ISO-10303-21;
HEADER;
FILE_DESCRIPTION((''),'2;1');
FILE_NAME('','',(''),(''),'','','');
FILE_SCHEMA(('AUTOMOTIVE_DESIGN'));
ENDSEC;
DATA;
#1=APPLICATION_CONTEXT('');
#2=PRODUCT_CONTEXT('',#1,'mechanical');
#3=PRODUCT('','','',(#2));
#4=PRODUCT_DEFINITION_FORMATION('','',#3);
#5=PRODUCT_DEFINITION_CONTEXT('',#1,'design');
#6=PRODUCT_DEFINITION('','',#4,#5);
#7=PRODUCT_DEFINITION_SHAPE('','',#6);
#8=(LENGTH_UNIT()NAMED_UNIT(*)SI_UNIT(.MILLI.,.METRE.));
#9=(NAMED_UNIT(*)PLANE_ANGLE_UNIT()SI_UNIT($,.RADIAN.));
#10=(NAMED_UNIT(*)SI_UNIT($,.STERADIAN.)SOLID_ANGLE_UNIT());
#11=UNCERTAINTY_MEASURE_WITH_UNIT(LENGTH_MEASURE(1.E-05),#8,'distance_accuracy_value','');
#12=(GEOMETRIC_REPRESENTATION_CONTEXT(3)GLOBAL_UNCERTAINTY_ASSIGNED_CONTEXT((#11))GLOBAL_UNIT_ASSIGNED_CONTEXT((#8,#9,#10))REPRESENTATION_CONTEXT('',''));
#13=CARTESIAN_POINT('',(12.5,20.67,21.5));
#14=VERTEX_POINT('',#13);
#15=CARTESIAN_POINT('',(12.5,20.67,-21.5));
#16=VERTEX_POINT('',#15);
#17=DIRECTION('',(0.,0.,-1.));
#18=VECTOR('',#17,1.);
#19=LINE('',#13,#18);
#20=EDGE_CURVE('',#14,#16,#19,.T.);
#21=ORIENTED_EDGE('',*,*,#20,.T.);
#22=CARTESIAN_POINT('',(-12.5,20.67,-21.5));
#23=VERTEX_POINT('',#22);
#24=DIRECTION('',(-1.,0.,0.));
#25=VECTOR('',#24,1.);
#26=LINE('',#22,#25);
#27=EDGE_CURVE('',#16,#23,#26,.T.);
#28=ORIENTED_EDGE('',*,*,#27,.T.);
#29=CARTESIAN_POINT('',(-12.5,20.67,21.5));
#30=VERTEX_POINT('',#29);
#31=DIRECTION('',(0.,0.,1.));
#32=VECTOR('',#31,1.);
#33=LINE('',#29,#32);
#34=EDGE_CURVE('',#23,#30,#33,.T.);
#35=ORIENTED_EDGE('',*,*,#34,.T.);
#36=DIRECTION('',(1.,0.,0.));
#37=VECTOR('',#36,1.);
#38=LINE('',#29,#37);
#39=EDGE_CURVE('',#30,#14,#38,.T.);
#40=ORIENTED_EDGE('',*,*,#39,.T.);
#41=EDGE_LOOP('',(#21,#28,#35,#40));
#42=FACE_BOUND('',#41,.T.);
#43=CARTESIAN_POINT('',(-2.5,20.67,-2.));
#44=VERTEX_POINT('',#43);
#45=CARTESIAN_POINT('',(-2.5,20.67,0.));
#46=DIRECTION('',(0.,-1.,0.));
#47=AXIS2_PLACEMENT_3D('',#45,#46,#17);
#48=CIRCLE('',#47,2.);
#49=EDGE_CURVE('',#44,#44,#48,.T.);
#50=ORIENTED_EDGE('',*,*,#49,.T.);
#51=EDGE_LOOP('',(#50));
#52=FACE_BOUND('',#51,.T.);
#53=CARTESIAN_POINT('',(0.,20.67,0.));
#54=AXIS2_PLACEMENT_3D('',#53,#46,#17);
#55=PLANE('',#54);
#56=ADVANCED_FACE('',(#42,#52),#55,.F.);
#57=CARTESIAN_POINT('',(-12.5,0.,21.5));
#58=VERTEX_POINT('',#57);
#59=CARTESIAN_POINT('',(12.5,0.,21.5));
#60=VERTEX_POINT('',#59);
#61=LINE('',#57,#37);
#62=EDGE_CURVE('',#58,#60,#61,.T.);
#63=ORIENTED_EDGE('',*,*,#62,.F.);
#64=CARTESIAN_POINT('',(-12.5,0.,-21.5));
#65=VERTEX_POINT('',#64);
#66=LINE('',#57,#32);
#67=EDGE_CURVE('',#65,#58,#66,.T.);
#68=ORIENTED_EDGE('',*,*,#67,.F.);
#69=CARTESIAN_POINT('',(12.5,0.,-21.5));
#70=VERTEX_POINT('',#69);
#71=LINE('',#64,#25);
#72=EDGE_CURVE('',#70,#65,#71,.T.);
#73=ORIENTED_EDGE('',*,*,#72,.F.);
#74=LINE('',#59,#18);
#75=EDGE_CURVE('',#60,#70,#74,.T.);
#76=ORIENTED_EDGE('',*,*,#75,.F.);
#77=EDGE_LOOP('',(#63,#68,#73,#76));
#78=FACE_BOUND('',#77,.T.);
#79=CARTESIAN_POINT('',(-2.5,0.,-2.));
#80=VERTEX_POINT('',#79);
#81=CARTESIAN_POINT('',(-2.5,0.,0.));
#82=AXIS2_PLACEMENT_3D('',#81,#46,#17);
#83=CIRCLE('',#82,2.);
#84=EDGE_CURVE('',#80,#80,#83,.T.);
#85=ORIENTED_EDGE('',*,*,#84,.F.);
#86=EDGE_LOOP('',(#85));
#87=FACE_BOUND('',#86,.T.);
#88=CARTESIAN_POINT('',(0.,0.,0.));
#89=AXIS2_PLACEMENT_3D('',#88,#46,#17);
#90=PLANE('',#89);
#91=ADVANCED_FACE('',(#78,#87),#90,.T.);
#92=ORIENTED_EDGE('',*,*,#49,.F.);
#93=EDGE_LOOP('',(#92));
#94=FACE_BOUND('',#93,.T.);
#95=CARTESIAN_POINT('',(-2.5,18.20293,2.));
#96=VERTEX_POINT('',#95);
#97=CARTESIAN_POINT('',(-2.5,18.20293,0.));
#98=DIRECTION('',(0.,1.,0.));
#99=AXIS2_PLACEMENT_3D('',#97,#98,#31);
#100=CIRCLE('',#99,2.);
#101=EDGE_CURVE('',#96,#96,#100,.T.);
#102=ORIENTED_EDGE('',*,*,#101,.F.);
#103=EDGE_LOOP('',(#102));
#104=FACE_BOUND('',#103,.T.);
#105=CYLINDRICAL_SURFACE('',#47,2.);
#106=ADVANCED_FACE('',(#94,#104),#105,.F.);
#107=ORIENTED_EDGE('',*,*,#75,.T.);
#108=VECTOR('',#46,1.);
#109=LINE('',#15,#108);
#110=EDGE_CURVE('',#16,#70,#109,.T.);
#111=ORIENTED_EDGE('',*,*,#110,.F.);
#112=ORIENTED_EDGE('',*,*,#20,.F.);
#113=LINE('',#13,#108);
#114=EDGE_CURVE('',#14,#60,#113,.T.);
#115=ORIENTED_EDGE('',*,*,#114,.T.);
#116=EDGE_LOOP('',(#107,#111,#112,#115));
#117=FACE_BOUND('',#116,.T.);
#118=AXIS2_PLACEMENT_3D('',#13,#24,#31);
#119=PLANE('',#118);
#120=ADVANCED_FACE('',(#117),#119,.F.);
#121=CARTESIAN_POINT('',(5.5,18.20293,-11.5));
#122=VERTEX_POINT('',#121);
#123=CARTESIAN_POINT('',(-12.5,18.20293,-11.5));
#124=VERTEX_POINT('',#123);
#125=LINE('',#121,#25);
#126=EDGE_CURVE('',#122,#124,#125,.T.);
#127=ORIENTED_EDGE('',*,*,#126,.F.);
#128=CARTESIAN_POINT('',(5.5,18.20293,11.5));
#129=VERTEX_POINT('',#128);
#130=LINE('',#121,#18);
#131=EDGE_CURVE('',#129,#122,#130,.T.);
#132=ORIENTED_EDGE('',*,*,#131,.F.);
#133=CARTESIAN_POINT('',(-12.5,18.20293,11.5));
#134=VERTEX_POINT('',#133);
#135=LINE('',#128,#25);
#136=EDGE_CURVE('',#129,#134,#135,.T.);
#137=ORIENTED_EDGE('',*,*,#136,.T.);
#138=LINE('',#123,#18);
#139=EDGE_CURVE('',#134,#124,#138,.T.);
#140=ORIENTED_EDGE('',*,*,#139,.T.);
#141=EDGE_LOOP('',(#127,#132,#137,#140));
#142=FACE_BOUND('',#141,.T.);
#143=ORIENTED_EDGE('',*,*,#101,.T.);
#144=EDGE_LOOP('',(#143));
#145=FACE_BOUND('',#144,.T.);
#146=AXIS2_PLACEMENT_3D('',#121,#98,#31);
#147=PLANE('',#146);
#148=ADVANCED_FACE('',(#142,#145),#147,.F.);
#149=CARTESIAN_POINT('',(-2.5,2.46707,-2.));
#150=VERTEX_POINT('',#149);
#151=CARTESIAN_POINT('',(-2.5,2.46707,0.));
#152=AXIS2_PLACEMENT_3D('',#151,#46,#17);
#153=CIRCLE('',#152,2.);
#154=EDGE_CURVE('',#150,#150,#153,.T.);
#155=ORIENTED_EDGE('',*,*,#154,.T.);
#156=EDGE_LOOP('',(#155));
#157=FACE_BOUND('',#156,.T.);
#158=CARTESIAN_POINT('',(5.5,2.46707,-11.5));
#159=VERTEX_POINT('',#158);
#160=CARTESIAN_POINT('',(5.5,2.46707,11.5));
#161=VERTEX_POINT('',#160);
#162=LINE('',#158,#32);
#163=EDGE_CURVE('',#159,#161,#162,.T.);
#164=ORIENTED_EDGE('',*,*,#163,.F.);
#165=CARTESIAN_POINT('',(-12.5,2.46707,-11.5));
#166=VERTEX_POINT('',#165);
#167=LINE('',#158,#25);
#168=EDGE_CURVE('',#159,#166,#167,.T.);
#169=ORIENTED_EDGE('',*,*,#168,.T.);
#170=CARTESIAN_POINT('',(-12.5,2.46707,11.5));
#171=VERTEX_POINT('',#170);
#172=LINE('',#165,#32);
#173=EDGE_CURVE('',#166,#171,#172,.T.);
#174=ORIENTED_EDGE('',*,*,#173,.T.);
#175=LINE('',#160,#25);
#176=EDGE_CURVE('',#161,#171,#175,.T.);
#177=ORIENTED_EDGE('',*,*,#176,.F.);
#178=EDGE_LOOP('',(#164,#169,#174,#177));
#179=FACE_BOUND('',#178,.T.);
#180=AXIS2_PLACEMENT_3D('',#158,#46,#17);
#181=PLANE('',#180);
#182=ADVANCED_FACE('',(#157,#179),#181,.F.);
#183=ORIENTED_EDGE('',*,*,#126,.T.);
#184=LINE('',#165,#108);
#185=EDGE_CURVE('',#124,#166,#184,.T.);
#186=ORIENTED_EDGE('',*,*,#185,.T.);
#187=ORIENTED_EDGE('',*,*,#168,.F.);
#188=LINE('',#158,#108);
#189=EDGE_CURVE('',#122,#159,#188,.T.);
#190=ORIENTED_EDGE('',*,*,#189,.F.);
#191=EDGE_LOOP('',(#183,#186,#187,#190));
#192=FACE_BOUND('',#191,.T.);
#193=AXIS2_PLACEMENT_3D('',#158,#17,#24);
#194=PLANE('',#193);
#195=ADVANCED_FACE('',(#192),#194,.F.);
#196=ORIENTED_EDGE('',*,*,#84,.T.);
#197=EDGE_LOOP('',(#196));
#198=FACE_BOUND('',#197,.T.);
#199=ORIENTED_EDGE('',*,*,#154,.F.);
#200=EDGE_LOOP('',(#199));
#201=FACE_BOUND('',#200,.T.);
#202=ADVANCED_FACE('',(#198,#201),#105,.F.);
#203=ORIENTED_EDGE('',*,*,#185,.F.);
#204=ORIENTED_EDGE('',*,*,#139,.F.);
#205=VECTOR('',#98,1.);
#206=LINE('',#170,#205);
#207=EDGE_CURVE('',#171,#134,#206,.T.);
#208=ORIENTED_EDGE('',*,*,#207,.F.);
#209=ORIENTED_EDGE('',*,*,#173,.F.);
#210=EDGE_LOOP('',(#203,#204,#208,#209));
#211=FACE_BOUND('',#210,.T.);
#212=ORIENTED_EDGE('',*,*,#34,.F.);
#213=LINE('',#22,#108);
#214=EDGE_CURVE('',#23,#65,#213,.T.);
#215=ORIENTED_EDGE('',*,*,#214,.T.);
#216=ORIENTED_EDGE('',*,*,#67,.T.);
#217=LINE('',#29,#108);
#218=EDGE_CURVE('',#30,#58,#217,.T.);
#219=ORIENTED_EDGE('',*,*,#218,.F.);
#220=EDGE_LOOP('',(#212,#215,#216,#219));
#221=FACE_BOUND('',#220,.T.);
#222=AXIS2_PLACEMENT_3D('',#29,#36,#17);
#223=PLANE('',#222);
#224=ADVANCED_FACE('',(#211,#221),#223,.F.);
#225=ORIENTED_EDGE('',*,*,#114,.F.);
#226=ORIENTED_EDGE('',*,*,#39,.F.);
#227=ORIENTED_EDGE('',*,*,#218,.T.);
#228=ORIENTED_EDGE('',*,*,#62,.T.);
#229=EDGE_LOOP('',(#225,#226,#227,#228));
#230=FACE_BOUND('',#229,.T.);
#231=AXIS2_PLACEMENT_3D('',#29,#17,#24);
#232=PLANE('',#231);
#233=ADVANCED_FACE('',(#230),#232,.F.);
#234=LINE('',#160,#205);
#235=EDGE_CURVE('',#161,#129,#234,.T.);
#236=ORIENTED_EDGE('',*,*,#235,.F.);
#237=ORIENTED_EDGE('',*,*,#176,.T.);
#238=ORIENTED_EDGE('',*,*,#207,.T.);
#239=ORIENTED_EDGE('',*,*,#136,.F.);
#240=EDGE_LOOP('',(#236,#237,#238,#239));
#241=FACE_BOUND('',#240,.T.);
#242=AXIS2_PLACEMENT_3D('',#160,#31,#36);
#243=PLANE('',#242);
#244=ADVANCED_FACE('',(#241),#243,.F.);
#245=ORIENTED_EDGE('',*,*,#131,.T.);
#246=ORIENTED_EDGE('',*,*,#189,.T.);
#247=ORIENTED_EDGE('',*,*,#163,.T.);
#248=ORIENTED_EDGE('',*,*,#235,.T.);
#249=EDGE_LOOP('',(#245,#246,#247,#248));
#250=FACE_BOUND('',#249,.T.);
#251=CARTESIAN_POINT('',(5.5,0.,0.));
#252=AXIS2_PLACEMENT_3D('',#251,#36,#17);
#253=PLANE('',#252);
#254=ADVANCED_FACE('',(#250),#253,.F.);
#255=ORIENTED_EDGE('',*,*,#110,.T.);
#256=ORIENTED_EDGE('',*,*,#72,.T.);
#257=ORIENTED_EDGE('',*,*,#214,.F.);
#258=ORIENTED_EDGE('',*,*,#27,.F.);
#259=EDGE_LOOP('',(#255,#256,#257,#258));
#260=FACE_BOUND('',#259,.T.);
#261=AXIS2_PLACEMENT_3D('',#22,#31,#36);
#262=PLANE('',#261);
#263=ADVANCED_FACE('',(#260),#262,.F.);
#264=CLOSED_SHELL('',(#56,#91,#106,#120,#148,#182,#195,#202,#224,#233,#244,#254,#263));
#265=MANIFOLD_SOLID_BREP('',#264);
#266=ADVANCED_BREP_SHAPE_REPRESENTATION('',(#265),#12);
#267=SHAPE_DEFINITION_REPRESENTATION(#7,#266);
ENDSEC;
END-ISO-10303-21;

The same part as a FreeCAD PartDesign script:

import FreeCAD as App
import Part
import Sketcher
Q = App.Units.Quantity

doc = App.newDocument("Part")
body = doc.addObject("PartDesign::Body", "Body")

# Sketch on XZ plane
sketch1 = body.newObject("Sketcher::SketchObject", "Sketch")
sketch1.AttachmentSupport = (doc.getObject("XZ_Plane"), [""])
sketch1.MapMode = "FlatFace"
sketch1.addGeometry(Part.LineSegment(App.Vector(-12, -22, 0), App.Vector(-12, 22, 0)), False)
sketch1.addGeometry(Part.LineSegment(App.Vector(-12, 22, 0), App.Vector(12, 22, 0)), False)
sketch1.addGeometry(Part.LineSegment(App.Vector(12, 22, 0), App.Vector(12, -22, 0)), False)
sketch1.addGeometry(Part.LineSegment(App.Vector(12, -22, 0), App.Vector(-12, -22, 0)), False)
sketch1.addConstraint(Sketcher.Constraint("Coincident", 0, 2, 1, 1))
sketch1.addConstraint(Sketcher.Constraint("Coincident", 1, 2, 2, 1))
sketch1.addConstraint(Sketcher.Constraint("Coincident", 2, 2, 3, 1))
sketch1.addConstraint(Sketcher.Constraint("Coincident", 3, 2, 0, 1))
sketch1.addConstraint(Sketcher.Constraint("Vertical", 0))
sketch1.addConstraint(Sketcher.Constraint("Horizontal", 1))
sketch1.addConstraint(Sketcher.Constraint("Vertical", 2))
sketch1.addConstraint(Sketcher.Constraint("Horizontal", 3))
sketch1.addConstraint(Sketcher.Constraint("Symmetric", 0, 2, 2, 2, -1, 1))
sketch1.addConstraint(Sketcher.Constraint("DistanceX", 1, 1, 1, 2, Q("25 mm")))
sketch1.addConstraint(Sketcher.Constraint("DistanceY", 0, 1, 0, 2, Q("43 mm")))
pad1 = body.newObject("PartDesign::Pad", "Pad")
pad1.Profile = sketch1
pad1.Length = 20.67
pad1.Reversed = True

# Sketch on YZ plane
sketch2 = body.newObject("Sketcher::SketchObject", "Sketch001")
sketch2.AttachmentSupport = (doc.getObject("YZ_Plane"), [""])
sketch2.MapMode = "FlatFace"
sketch2.AttachmentOffset = App.Placement(App.Vector(0, 0, -12.5), App.Rotation())
sketch2.addGeometry(Part.LineSegment(App.Vector(18, -12, 0), App.Vector(2, -12, 0)), False)
sketch2.addGeometry(Part.LineSegment(App.Vector(2, -12, 0), App.Vector(2, 12, 0)), False)
sketch2.addGeometry(Part.LineSegment(App.Vector(2, 12, 0), App.Vector(18, 12, 0)), False)
sketch2.addGeometry(Part.LineSegment(App.Vector(18, 12, 0), App.Vector(18, -12, 0)), False)
sketch2.addConstraint(Sketcher.Constraint("Coincident", 0, 2, 1, 1))
sketch2.addConstraint(Sketcher.Constraint("Coincident", 1, 2, 2, 1))
sketch2.addConstraint(Sketcher.Constraint("Coincident", 2, 2, 3, 1))
sketch2.addConstraint(Sketcher.Constraint("Coincident", 3, 2, 0, 1))
sketch2.addConstraint(Sketcher.Constraint("Horizontal", 0))
sketch2.addConstraint(Sketcher.Constraint("Vertical", 1))
sketch2.addConstraint(Sketcher.Constraint("Horizontal", 2))
sketch2.addConstraint(Sketcher.Constraint("Vertical", 3))
sketch2.addConstraint(Sketcher.Constraint("DistanceY", 1, 1, 1, 2, Q("23 mm")))
sketch2.addConstraint(Sketcher.Constraint("DistanceY", 0, 2, -1, 1, Q("11.5 mm")))
sketch2.addConstraint(Sketcher.Constraint("DistanceX", 0, 2, 0, 1, Q("15.735859 mm")))
sketch2.addConstraint(Sketcher.Constraint("DistanceX", -1, 1, 0, 2, Q("2.46707 mm")))
pocket1 = body.newObject("PartDesign::Pocket", "Pocket")
pocket1.Profile = sketch2
pocket1.Length = 18
pocket1.Reversed = True

# Sketch on XZ plane
sketch3 = body.newObject("Sketcher::SketchObject", "Sketch002")
sketch3.AttachmentSupport = (doc.getObject("XZ_Plane"), [""])
sketch3.MapMode = "FlatFace"
sketch3.addGeometry(Part.Circle(App.Vector(-2.5, 0, 0), App.Vector(0, 0, 1), 2), False)
sketch3.addConstraint(Sketcher.Constraint("PointOnObject", 0, 3, -1))
sketch3.addConstraint(Sketcher.Constraint("Diameter", 0, Q("4 mm")))
sketch3.addConstraint(Sketcher.Constraint("DistanceX", 0, 3, -1, 1, Q("2.5 mm")))
pocket2 = body.newObject("PartDesign::Pocket", "Pocket001")
pocket2.Profile = sketch3
pocket2.Type = "ThroughAll"

doc.recompute()
